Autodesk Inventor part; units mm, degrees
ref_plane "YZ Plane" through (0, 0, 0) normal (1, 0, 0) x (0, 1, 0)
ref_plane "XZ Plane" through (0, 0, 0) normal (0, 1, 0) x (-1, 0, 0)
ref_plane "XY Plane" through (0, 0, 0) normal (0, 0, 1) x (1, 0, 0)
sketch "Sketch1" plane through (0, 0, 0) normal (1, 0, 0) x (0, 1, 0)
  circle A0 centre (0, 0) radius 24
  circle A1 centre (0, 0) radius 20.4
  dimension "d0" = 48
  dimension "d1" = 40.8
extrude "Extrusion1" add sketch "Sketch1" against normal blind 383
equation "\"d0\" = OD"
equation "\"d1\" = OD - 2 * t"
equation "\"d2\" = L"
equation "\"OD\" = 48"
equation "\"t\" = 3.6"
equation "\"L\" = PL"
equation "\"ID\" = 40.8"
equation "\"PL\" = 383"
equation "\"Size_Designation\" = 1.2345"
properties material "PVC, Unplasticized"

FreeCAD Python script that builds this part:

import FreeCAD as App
import Part
import Sketcher

V = App.Vector

doc = App.newDocument("Part")
body = doc.addObject("PartDesign::Body", "Body")

sketch1 = doc.addObject("Sketcher::SketchObject", "Sketch")
body.addObject(sketch1)
sketch1.AttachmentSupport = (doc.YZ_Plane, [""])
sketch1.MapMode = "FlatFace"
sketch1.addGeometry([
    Part.Circle(V(0, 0, 0), V(0, 0, 1), 24),
    Part.Circle(V(0, 0, 0), V(0, 0, 1), 20),
], False)
sketch1.addConstraint([
    Sketcher.Constraint("Coincident", 0, 3, -1, 1),
    Sketcher.Constraint("Coincident", 1, 3, -1, 1),
    Sketcher.Constraint("Diameter", 0, 48.0),
    Sketcher.Constraint("Diameter", 1, 40.8),
])
pad1 = doc.addObject("PartDesign::Pad", "Pad")
body.addObject(pad1)
pad1.Profile = sketch1
pad1.Length = 383
pad1.Reversed = True

doc.recompute()
